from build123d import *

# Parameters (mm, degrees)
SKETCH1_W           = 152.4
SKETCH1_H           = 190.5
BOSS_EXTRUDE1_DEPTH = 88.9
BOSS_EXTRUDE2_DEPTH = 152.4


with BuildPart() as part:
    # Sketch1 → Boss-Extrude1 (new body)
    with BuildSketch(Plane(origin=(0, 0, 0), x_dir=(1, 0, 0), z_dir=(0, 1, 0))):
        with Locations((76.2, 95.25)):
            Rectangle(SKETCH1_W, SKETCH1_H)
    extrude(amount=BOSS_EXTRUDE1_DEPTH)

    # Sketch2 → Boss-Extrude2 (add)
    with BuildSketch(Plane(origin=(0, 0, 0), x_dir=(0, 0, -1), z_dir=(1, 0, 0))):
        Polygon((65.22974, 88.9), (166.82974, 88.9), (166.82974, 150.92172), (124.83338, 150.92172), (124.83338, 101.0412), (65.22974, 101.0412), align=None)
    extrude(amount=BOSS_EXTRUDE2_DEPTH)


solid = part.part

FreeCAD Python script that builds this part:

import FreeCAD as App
import Part
import Sketcher
from FreeCAD import Vector
Q = App.Units.Quantity


def add_polygon(sketch, points):
    """Adds a closed chain of lines whose ends are joined by coincident constraints."""
    first, n = sketch.GeometryCount, len(points)
    for a, b in zip(points, points[1:] + points[:1]):
        sketch.addGeometry(Part.LineSegment(App.Vector(*a, 0), App.Vector(*b, 0)), False)
    for i in range(n):
        sketch.addConstraint(Sketcher.Constraint("Coincident", first + i, 2, first + (i + 1) % n, 1))

doc = App.newDocument("Part")
body = doc.addObject("PartDesign::Body", "Body")

sketch1 = body.newObject("Sketcher::SketchObject", "Sketch")
sketch1.AttachmentSupport = (doc.getObject("XZ_Plane"), [""])
sketch1.MapMode = "FlatFace"
add_polygon(sketch1, [(0, -190), (0, 0), (152, 0), (152, -190)])
sketch1.addConstraint([
    Sketcher.Constraint("Vertical", 0),
    Sketcher.Constraint("Horizontal", 1),
    Sketcher.Constraint("Vertical", 2),
    Sketcher.Constraint("Horizontal", 3),
    Sketcher.Constraint("Coincident", 0, 2, -1, 1),
    Sketcher.Constraint("DistanceX", 1, 1, 1, 2, Q("6 in")),
    Sketcher.Constraint("DistanceY", 0, 1, 0, 2, Q("7.5 in")),
])
pad1 = body.newObject("PartDesign::Pad", "Pad")
pad1.Profile = sketch1
pad1.Length = Q("3.5 in")
pad1.Reversed = True

sketch2 = body.newObject("Sketcher::SketchObject", "Sketch001")
sketch2.AttachmentSupport = (doc.getObject("YZ_Plane"), [""])
sketch2.MapMode = "FlatFace"
add_polygon(sketch2, [(89, -65), (89, -167), (151, -167), (151, -125), (101, -125), (101, -65)])
sketch2.addConstraint([
    Sketcher.Constraint("Vertical", 0),
    Sketcher.Constraint("Horizontal", 1),
    Sketcher.Constraint("Vertical", 2),
    Sketcher.Constraint("Horizontal", 3),
    Sketcher.Constraint("Vertical", 4),
    Sketcher.Constraint("Horizontal", 5),
    Sketcher.Constraint("DistanceY", 0, 2, 0, 1, Q("4 in")),
    Sketcher.Constraint("DistanceX", -1, 1, 0, 2, Q("3.5 in")),
    Sketcher.Constraint("DistanceX", 5, 2, 5, 1, Q("0.478 in")),
    Sketcher.Constraint("DistanceX", 1, 1, 1, 2, Q("2.4418 in")),
    Sketcher.Constraint("DistanceY", 2, 1, 2, 2, Q("1.6534 in")),
    Sketcher.Constraint("DistanceY", 0, 2, -1, 1, Q("6.5681 in")),
])
pad2 = body.newObject("PartDesign::Pad", "Pad001")
pad2.Profile = sketch2
pad2.Length = Q("6 in")

doc.recompute()
